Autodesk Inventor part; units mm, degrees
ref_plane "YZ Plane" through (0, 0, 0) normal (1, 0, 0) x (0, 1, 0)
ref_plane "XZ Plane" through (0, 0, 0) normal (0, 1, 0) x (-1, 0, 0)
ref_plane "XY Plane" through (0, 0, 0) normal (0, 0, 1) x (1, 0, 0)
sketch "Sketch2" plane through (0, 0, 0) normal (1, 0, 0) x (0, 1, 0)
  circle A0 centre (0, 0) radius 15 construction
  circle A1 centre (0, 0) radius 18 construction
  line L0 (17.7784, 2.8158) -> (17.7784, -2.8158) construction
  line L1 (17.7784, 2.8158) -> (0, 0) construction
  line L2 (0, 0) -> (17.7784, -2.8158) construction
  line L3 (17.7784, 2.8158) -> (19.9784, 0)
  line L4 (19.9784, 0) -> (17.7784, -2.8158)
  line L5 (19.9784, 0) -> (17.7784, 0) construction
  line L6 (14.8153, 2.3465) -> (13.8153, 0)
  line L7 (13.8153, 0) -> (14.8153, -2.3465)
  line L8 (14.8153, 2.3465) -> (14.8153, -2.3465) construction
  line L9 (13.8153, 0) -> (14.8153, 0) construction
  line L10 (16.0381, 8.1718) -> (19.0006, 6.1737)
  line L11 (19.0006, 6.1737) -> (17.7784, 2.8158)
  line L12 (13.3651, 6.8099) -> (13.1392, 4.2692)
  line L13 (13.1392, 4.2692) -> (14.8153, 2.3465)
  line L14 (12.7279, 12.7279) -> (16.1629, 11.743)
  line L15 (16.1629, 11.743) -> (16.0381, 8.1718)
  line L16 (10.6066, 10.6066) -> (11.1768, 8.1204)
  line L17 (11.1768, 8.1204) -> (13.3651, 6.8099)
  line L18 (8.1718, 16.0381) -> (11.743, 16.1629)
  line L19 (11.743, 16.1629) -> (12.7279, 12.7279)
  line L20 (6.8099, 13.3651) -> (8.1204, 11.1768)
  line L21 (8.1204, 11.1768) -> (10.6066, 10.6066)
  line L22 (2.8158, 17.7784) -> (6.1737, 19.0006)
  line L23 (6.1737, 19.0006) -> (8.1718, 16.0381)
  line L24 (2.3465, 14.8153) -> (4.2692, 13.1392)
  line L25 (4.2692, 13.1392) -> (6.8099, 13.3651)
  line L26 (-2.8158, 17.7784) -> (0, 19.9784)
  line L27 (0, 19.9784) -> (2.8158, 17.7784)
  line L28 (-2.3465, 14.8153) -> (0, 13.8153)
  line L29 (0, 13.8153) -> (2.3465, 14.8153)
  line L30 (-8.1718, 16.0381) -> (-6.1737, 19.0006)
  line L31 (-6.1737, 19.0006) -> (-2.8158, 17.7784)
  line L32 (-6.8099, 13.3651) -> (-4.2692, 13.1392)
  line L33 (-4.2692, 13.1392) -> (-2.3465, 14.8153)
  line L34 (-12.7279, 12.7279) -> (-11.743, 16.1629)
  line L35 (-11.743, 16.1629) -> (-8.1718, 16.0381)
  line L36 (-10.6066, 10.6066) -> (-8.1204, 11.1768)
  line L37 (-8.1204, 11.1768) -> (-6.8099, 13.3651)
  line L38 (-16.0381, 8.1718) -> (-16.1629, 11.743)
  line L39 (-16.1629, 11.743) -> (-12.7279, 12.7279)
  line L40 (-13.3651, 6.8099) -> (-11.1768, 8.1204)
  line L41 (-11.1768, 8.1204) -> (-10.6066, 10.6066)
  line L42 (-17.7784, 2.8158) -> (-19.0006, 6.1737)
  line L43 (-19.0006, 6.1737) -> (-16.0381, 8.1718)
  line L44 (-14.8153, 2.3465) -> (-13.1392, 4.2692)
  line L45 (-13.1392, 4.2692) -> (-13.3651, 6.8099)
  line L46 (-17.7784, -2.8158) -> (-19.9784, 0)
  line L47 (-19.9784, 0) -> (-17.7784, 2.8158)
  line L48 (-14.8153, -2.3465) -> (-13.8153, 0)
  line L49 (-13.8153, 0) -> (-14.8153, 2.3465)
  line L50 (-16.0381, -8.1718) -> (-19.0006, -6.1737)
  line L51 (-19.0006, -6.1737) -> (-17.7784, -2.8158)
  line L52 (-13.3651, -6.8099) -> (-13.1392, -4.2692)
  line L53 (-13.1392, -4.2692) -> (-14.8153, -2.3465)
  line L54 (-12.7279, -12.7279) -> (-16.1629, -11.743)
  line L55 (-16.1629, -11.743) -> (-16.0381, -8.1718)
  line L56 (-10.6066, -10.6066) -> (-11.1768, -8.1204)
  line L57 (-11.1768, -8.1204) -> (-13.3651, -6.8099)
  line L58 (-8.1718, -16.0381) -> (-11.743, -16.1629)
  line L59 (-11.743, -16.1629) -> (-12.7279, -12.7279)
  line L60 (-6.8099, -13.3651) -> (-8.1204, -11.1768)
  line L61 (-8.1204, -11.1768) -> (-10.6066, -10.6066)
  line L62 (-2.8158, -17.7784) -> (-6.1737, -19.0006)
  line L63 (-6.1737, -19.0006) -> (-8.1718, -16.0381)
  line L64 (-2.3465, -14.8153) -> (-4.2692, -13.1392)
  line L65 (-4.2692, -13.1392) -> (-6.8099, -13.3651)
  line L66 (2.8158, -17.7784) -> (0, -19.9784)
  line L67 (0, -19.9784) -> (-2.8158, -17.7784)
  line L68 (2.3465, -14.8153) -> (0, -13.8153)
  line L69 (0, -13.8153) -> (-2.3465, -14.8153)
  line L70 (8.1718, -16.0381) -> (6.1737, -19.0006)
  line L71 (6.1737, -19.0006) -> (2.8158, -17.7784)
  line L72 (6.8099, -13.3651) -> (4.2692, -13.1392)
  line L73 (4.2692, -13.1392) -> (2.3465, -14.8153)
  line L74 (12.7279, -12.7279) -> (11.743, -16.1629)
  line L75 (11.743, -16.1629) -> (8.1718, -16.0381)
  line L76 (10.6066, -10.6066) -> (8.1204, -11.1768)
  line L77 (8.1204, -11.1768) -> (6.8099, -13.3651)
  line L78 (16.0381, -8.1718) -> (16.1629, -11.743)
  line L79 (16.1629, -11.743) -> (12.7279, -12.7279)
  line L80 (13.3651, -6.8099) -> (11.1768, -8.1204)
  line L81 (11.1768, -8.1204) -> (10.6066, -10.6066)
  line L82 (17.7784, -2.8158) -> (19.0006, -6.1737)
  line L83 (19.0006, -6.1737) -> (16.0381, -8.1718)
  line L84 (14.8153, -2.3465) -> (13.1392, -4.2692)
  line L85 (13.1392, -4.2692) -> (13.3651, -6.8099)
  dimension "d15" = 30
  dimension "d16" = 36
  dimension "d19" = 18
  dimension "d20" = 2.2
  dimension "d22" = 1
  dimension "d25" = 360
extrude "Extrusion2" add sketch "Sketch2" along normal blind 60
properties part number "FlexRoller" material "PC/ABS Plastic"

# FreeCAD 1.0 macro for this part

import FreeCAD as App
import Part
import Sketcher
from FreeCAD import Vector
Q = App.Units.Quantity


def add_polygon(sketch, points):
    """Adds a closed chain of lines whose ends are joined by coincident constraints."""
    first, n = sketch.GeometryCount, len(points)
    for a, b in zip(points, points[1:] + points[:1]):
        sketch.addGeometry(Part.LineSegment(App.Vector(*a, 0), App.Vector(*b, 0)), False)
    for i in range(n):
        sketch.addConstraint(Sketcher.Constraint("Coincident", first + i, 2, first + (i + 1) % n, 1))

doc = App.newDocument("Part")
body = doc.addObject("PartDesign::Body", "Body")

sketch1 = doc.addObject("Sketcher::SketchObject", "Sketch")
body.addObject(sketch1)
sketch1.AttachmentSupport = (doc.YZ_Plane, [""])
sketch1.MapMode = "FlatFace"
add_polygon(sketch1, [(19.9784, 0), (17.7784, 2.8158), (19.0006, 6.1737), (16.0381, 8.1718), (16.1629, 11.743), (12.7279, 12.7279), (11.743, 16.1629), (8.1718, 16.0381), (6.1737, 19.0006), (2.8158, 17.7784), (0, 19.9784), (-2.8158, 17.7784), (-6.1737, 19.0006), (-8.1718, 16.0381), (-11.743, 16.1629), (-12.7279, 12.7279), (-16.1629, 11.743), (-16.0381, 8.1718), (-19.0006, 6.1737), (-17.7784, 2.8158), (-19.9784, 0), (-17.7784, -2.8158), (-19.0006, -6.1737), (-16.0381, -8.1718), (-16.1629, -11.743), (-12.7279, -12.7279), (-11.743, -16.1629), (-8.1718, -16.0381), (-6.1737, -19.0006), (-2.8158, -17.7784), (0, -19.9784), (2.8158, -17.7784), (6.1737, -19.0006), (8.1718, -16.0381), (11.743, -16.1629), (12.7279, -12.7279), (16.1629, -11.743), (16.0381, -8.1718), (19.0006, -6.1737), (17.7784, -2.8158)])
add_polygon(sketch1, [(13.1392, 4.2692), (14.8153, 2.3465), (13.8153, 0), (14.8153, -2.3465), (13.1392, -4.2692), (13.3651, -6.8099), (11.1768, -8.1204), (10.6066, -10.6066), (8.1204, -11.1768), (6.8099, -13.3651), (4.2692, -13.1392), (2.3465, -14.8153), (0, -13.8153), (-2.3465, -14.8153), (-4.2692, -13.1392), (-6.8099, -13.3651), (-8.1204, -11.1768), (-10.6066, -10.6066), (-11.1768, -8.1204), (-13.3651, -6.8099), (-13.1392, -4.2692), (-14.8153, -2.3465), (-13.8153, 0), (-14.8153, 2.3465), (-13.1392, 4.2692), (-13.3651, 6.8099), (-11.1768, 8.1204), (-10.6066, 10.6066), (-8.1204, 11.1768), (-6.8099, 13.3651), (-4.2692, 13.1392), (-2.3465, 14.8153), (0, 13.8153), (2.3465, 14.8153), (4.2692, 13.1392), (6.8099, 13.3651), (8.1204, 11.1768), (10.6066, 10.6066), (11.1768, 8.1204), (13.3651, 6.8099)])
sketch1.addConstraint([
    Sketcher.Constraint("Symmetric", 0, 2, 20, 2, -1, 1),
    Sketcher.Constraint("Symmetric", 1, 2, 21, 2, -1, 1),
    Sketcher.Constraint("Symmetric", 2, 2, 22, 2, -1, 1),
    Sketcher.Constraint("Symmetric", 3, 2, 23, 2, -1, 1),
    Sketcher.Constraint("Symmetric", 4, 2, 24, 2, -1, 1),
    Sketcher.Constraint("Symmetric", 5, 2, 25, 2, -1, 1),
    Sketcher.Constraint("Symmetric", 6, 2, 26, 2, -1, 1),
    Sketcher.Constraint("Symmetric", 7, 2, 27, 2, -1, 1),
    Sketcher.Constraint("Symmetric", 8, 2, 28, 2, -1, 1),
    Sketcher.Constraint("Symmetric", 9, 2, 29, 2, -1, 1),
    Sketcher.Constraint("Symmetric", 10, 2, 30, 2, -1, 1),
    Sketcher.Constraint("Symmetric", 11, 2, 31, 2, -1, 1),
    Sketcher.Constraint("Symmetric", 12, 2, 32, 2, -1, 1),
    Sketcher.Constraint("Symmetric", 13, 2, 33, 2, -1, 1),
    Sketcher.Constraint("Symmetric", 14, 2, 34, 2, -1, 1),
    Sketcher.Constraint("Symmetric", 15, 2, 35, 2, -1, 1),
    Sketcher.Constraint("Symmetric", 16, 2, 36, 2, -1, 1),
    Sketcher.Constraint("Symmetric", 17, 2, 37, 2, -1, 1),
    Sketcher.Constraint("Symmetric", 18, 2, 38, 2, -1, 1),
    Sketcher.Constraint("Symmetric", 19, 2, 39, 2, -1, 1),
    Sketcher.Constraint("Symmetric", 40, 2, 60, 2, -1, 1),
    Sketcher.Constraint("Symmetric", 41, 2, 61, 2, -1, 1),
    Sketcher.Constraint("Symmetric", 42, 2, 62, 2, -1, 1),
    Sketcher.Constraint("Symmetric", 43, 2, 63, 2, -1, 1),
    Sketcher.Constraint("Symmetric", 44, 2, 64, 2, -1, 1),
    Sketcher.Constraint("Symmetric", 45, 2, 65, 2, -1, 1),
    Sketcher.Constraint("Symmetric", 46, 2, 66, 2, -1, 1),
    Sketcher.Constraint("Symmetric", 47, 2, 67, 2, -1, 1),
    Sketcher.Constraint("Symmetric", 48, 2, 68, 2, -1, 1),
    Sketcher.Constraint("Symmetric", 49, 2, 69, 2, -1, 1),
    Sketcher.Constraint("Symmetric", 50, 2, 70, 2, -1, 1),
    Sketcher.Constraint("Symmetric", 51, 2, 71, 2, -1, 1),
    Sketcher.Constraint("Symmetric", 52, 2, 72, 2, -1, 1),
    Sketcher.Constraint("Symmetric", 53, 2, 73, 2, -1, 1),
    Sketcher.Constraint("Symmetric", 54, 2, 74, 2, -1, 1),
    Sketcher.Constraint("Symmetric", 55, 2, 75, 2, -1, 1),
    Sketcher.Constraint("Symmetric", 56, 2, 76, 2, -1, 1),
    Sketcher.Constraint("Symmetric", 57, 2, 77, 2, -1, 1),
    Sketcher.Constraint("Symmetric", 58, 2, 78, 2, -1, 1),
    Sketcher.Constraint("Symmetric", 59, 2, 79, 2, -1, 1),
    Sketcher.Constraint("Symmetric", 8, 2, 10, 2, -2),
    Sketcher.Constraint("Symmetric", 7, 2, 11, 2, -2),
    Sketcher.Constraint("Symmetric", 6, 2, 12, 2, -2),
    Sketcher.Constraint("Symmetric", 5, 2, 13, 2, -2),
    Sketcher.Constraint("Symmetric", 4, 2, 14, 2, -2),
    Sketcher.Constraint("Symmetric", 3, 2, 15, 2, -2),
    Sketcher.Constraint("Symmetric", 2, 2, 16, 2, -2),
    Sketcher.Constraint("Symmetric", 1, 2, 17, 2, -2),
    Sketcher.Constraint("Symmetric", 0, 2, 18, 2, -2),
    Sketcher.Constraint("Symmetric", 50, 2, 52, 2, -2),
    Sketcher.Constraint("Symmetric", 49, 2, 53, 2, -2),
    Sketcher.Constraint("Symmetric", 48, 2, 54, 2, -2),
    Sketcher.Constraint("Symmetric", 47, 2, 55, 2, -2),
    Sketcher.Constraint("Symmetric", 46, 2, 56, 2, -2),
    Sketcher.Constraint("Symmetric", 45, 2, 57, 2, -2),
    Sketcher.Constraint("Symmetric", 44, 2, 58, 2, -2),
    Sketcher.Constraint("Symmetric", 43, 2, 59, 2, -2),
    Sketcher.Constraint("Symmetric", 42, 2, 60, 2, -2),
    Sketcher.Constraint("PointOnObject", 9, 2, -2),
    Sketcher.Constraint("PointOnObject", 19, 2, -1),
    Sketcher.Constraint("PointOnObject", 41, 2, -1),
    Sketcher.Constraint("PointOnObject", 51, 2, -2),
    Sketcher.Constraint("Perpendicular", 0, 10),
    Sketcher.Constraint("Perpendicular", 1, 11),
    Sketcher.Constraint("Perpendicular", 2, 12),
    Sketcher.Constraint("Perpendicular", 3, 13),
    Sketcher.Constraint("Perpendicular", 4, 14),
    Sketcher.Constraint("Perpendicular", 40, 50),
    Sketcher.Constraint("Perpendicular", 41, 51),
    Sketcher.Constraint("Perpendicular", 44, 54),
    Sketcher.Constraint("Perpendicular", 45, 55),
    Sketcher.Constraint("Perpendicular", 46, 56),
    Sketcher.Constraint("Equal", 0, 1),
    Sketcher.Constraint("Equal", 1, 2),
    Sketcher.Constraint("Equal", 2, 3),
    Sketcher.Constraint("Equal", 3, 4),
    Sketcher.Constraint("Equal", 4, 5),
    Sketcher.Constraint("Equal", 5, 6),
    Sketcher.Constraint("Equal", 6, 7),
    Sketcher.Constraint("Equal", 7, 8),
    Sketcher.Constraint("Equal", 8, 9),
    Sketcher.Constraint("Equal", 40, 41),
    Sketcher.Constraint("Equal", 43, 44),
    Sketcher.Constraint("Equal", 44, 45),
    Sketcher.Constraint("Equal", 45, 46),
    Sketcher.Constraint("Equal", 46, 47),
    Sketcher.Constraint("Equal", 47, 48),
    Sketcher.Constraint("Equal", 48, 49),
    Sketcher.Constraint("Equal", 49, 50),
    Sketcher.Constraint("Equal", 50, 51),
    Sketcher.Constraint("Angle", 0, Q("128.0007 deg")),
    Sketcher.Constraint("Angle", 1, Q("69.9996 deg")),
    Sketcher.Constraint("Angle", 4, Q("164.001 deg")),
    Sketcher.Constraint("Angle", 40, Q("-48.92 deg")),
    Sketcher.Constraint("Angle", 44, Q("-84.919 deg")),
    Sketcher.Constraint("DistanceY", 44, 2, -1, 1, Q("6.81 mm")),
    Sketcher.Constraint("DistanceX", -1, 1, 2, 2, Q("16.038 mm")),
    Sketcher.Constraint("DistanceX", -1, 1, 3, 2, Q("16.163 mm")),
    Sketcher.Constraint("DistanceY", -1, 1, 3, 2, Q("11.743 mm")),
    Sketcher.Constraint("DistanceX", -1, 1, 44, 2, Q("13.365 mm")),
    Sketcher.Constraint("Distance", 40, Q("2.5507 mm")),
    Sketcher.Constraint("DistanceX", -1, 1, 45, 2, Q("11.1768 mm")),
])
pad1 = doc.addObject("PartDesign::Pad", "Pad")
body.addObject(pad1)
pad1.Profile = sketch1
pad1.Length = 60

doc.recompute()
